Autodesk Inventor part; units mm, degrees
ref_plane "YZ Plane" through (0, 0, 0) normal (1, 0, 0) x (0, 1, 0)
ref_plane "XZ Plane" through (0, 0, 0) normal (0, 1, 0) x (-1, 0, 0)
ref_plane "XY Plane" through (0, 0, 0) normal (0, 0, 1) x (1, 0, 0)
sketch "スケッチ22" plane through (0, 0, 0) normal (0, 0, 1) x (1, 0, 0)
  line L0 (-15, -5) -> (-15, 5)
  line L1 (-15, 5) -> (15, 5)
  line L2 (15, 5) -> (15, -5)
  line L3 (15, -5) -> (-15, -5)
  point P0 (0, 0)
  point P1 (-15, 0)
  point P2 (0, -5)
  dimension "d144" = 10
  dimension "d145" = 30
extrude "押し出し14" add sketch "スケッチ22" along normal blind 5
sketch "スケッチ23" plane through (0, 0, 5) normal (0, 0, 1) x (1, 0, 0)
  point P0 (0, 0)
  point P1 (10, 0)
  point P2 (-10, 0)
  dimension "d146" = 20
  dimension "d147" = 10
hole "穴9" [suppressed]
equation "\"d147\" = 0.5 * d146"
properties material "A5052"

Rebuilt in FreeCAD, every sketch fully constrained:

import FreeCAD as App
import Part
import Sketcher

V = App.Vector
Q = App.Units.Quantity

doc = App.newDocument("Part")
body = doc.addObject("PartDesign::Body", "Body")

# Sketch on XY plane
sketch1 = doc.addObject("Sketcher::SketchObject", "Sketch")
body.addObject(sketch1)
sketch1.AttachmentSupport = (doc.XY_Plane, [""])
sketch1.MapMode = "FlatFace"
sketch1.addGeometry(Part.LineSegment(V(-15, 5, 0), V(-15, -5, 0)), False)
sketch1.addGeometry(Part.LineSegment(V(-15, -5, 0), V(15, -5, 0)), False)
sketch1.addGeometry(Part.LineSegment(V(15, -5, 0), V(15, 5, 0)), False)
sketch1.addGeometry(Part.LineSegment(V(15, 5, 0), V(-15, 5, 0)), False)
sketch1.addConstraint(Sketcher.Constraint("Coincident", 0, 2, 1, 1))
sketch1.addConstraint(Sketcher.Constraint("Coincident", 1, 2, 2, 1))
sketch1.addConstraint(Sketcher.Constraint("Coincident", 2, 2, 3, 1))
sketch1.addConstraint(Sketcher.Constraint("Coincident", 3, 2, 0, 1))
sketch1.addConstraint(Sketcher.Constraint("Vertical", 0))
sketch1.addConstraint(Sketcher.Constraint("Horizontal", 1))
sketch1.addConstraint(Sketcher.Constraint("Vertical", 2))
sketch1.addConstraint(Sketcher.Constraint("Horizontal", 3))
sketch1.addConstraint(Sketcher.Constraint("Symmetric", 0, 2, 2, 2, -1, 1))
sketch1.addConstraint(Sketcher.Constraint("DistanceX", 1, 1, 1, 2, Q("30 mm")))
sketch1.addConstraint(Sketcher.Constraint("DistanceY", 0, 2, 0, 1, Q("10 mm")))
pad1 = doc.addObject("PartDesign::Pad", "Pad")
body.addObject(pad1)
pad1.Profile = sketch1
pad1.Length = 5

doc.recompute()
